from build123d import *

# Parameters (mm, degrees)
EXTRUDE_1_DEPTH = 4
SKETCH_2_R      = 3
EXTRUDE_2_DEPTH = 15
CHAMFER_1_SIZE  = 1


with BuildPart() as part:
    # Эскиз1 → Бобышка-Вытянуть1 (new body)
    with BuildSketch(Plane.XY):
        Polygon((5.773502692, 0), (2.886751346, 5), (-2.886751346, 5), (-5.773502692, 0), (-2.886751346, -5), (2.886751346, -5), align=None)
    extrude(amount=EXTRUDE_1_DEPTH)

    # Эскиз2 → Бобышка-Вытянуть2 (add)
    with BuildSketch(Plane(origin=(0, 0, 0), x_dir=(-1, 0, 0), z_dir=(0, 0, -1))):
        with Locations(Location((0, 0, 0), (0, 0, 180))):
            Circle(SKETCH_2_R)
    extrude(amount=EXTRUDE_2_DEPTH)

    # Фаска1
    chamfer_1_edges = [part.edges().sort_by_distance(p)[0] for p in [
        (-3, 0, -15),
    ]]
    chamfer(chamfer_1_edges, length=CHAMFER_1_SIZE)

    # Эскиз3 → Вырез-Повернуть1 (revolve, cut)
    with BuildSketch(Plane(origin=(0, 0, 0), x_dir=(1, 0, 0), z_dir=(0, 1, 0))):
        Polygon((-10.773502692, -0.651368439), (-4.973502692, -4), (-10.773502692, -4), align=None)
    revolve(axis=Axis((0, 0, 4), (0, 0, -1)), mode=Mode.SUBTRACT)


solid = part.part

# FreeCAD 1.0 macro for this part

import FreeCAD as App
import Part
import Sketcher
Q = App.Units.Quantity


def edges_at(feature, points):
    """Names of the edges that pass closest to the given points."""
    edges = feature.Shape.Edges
    near = lambda p: min(range(len(edges)), key=lambda i: edges[i].distToShape(Part.Vertex(*p))[0])
    return sorted({f"Edge{near(p) + 1}" for p in points})


def add_polygon(sketch, points):
    """Adds a closed chain of lines whose ends are joined by coincident constraints."""
    first, n = sketch.GeometryCount, len(points)
    for a, b in zip(points, points[1:] + points[:1]):
        sketch.addGeometry(Part.LineSegment(App.Vector(*a, 0), App.Vector(*b, 0)), False)
    for i in range(n):
        sketch.addConstraint(Sketcher.Constraint("Coincident", first + i, 2, first + (i + 1) % n, 1))

doc = App.newDocument("Part")
body = doc.addObject("PartDesign::Body", "Body")

# Sketch on XY plane
sketch1 = body.newObject("Sketcher::SketchObject", "Sketch")
sketch1.AttachmentSupport = (doc.getObject("XY_Plane"), [""])
sketch1.MapMode = "FlatFace"
add_polygon(sketch1, [(6, 0), (3, 5), (-3, 5), (-6, 0), (-3, -5), (3, -5)])  # lines 0-5
sketch1.addConstraint([
    Sketcher.Constraint("Horizontal", 1),
    Sketcher.Constraint("Horizontal", 4),
    Sketcher.Constraint("Symmetric", 0, 2, 3, 2, -1, 1),
    Sketcher.Constraint("Symmetric", 2, 2, 5, 2, -1, 1),
    Sketcher.Constraint("PointOnObject", 2, 2, -1),
    Sketcher.Constraint("Parallel", 2, 5),
    Sketcher.Constraint("Vertical", 1, 2, 3, 2),
    Sketcher.Constraint("Angle", 0, Q("120 deg")),
    Sketcher.Constraint("DistanceY", -1, 1, 0, 2, Q("5 mm")),
    Sketcher.Constraint("DistanceX", 1, 2, 1, 1, Q("5.773503 mm")),
])
pad1 = body.newObject("PartDesign::Pad", "Pad")
pad1.Profile = sketch1
pad1.Length = 4

# Sketch on XY plane
sketch2 = body.newObject("Sketcher::SketchObject", "Sketch001")
sketch2.AttachmentSupport = (doc.getObject("XY_Plane"), [""])
sketch2.MapMode = "FlatFace"
sketch2.addGeometry(Part.Circle(App.Vector(0, 0, 0), App.Vector(0, 0, 1), 3), False)
sketch2.addConstraint([
    Sketcher.Constraint("Coincident", 0, 3, -1, 1),
    Sketcher.Constraint("Diameter", 0, Q("6 mm")),
])
pad2 = body.newObject("PartDesign::Pad", "Pad001")
pad2.Profile = sketch2
pad2.Length = 15
pad2.Reversed = True
doc.recompute()

chamfer = body.newObject("PartDesign::Chamfer", "Chamfer")
chamfer.Base = (pad2, edges_at(pad2, [(-3, 0, -15)]))
chamfer.Size = 1

# Sketch on XZ plane
sketch3 = body.newObject("Sketcher::SketchObject", "Sketch002")
sketch3.AttachmentSupport = (doc.getObject("XZ_Plane"), [""])
sketch3.MapMode = "FlatFace"
add_polygon(sketch3, [(-5, 4), (-10.8, 0.7), (-10.8, 4)])  # lines 0-2
sketch3.addConstraint([
    Sketcher.Constraint("Vertical", 1),
    Sketcher.Constraint("Horizontal", 2),
    Sketcher.Constraint("Angle", 0, Q("-150 deg")),
    Sketcher.Constraint("DistanceX", 2, 1, 2, 2, Q("5.8 mm")),
    Sketcher.Constraint("DistanceY", -1, 1, 1, 2, Q("4 mm")),
    Sketcher.Constraint("DistanceX", 0, 2, -1, 1, Q("10.773503 mm")),
])
groove = body.newObject("PartDesign::Groove", "Groove")
groove.Profile = sketch3
groove.ReferenceAxis = (sketch3, ["V_Axis"])
groove.Angle = 360

doc.recompute()
